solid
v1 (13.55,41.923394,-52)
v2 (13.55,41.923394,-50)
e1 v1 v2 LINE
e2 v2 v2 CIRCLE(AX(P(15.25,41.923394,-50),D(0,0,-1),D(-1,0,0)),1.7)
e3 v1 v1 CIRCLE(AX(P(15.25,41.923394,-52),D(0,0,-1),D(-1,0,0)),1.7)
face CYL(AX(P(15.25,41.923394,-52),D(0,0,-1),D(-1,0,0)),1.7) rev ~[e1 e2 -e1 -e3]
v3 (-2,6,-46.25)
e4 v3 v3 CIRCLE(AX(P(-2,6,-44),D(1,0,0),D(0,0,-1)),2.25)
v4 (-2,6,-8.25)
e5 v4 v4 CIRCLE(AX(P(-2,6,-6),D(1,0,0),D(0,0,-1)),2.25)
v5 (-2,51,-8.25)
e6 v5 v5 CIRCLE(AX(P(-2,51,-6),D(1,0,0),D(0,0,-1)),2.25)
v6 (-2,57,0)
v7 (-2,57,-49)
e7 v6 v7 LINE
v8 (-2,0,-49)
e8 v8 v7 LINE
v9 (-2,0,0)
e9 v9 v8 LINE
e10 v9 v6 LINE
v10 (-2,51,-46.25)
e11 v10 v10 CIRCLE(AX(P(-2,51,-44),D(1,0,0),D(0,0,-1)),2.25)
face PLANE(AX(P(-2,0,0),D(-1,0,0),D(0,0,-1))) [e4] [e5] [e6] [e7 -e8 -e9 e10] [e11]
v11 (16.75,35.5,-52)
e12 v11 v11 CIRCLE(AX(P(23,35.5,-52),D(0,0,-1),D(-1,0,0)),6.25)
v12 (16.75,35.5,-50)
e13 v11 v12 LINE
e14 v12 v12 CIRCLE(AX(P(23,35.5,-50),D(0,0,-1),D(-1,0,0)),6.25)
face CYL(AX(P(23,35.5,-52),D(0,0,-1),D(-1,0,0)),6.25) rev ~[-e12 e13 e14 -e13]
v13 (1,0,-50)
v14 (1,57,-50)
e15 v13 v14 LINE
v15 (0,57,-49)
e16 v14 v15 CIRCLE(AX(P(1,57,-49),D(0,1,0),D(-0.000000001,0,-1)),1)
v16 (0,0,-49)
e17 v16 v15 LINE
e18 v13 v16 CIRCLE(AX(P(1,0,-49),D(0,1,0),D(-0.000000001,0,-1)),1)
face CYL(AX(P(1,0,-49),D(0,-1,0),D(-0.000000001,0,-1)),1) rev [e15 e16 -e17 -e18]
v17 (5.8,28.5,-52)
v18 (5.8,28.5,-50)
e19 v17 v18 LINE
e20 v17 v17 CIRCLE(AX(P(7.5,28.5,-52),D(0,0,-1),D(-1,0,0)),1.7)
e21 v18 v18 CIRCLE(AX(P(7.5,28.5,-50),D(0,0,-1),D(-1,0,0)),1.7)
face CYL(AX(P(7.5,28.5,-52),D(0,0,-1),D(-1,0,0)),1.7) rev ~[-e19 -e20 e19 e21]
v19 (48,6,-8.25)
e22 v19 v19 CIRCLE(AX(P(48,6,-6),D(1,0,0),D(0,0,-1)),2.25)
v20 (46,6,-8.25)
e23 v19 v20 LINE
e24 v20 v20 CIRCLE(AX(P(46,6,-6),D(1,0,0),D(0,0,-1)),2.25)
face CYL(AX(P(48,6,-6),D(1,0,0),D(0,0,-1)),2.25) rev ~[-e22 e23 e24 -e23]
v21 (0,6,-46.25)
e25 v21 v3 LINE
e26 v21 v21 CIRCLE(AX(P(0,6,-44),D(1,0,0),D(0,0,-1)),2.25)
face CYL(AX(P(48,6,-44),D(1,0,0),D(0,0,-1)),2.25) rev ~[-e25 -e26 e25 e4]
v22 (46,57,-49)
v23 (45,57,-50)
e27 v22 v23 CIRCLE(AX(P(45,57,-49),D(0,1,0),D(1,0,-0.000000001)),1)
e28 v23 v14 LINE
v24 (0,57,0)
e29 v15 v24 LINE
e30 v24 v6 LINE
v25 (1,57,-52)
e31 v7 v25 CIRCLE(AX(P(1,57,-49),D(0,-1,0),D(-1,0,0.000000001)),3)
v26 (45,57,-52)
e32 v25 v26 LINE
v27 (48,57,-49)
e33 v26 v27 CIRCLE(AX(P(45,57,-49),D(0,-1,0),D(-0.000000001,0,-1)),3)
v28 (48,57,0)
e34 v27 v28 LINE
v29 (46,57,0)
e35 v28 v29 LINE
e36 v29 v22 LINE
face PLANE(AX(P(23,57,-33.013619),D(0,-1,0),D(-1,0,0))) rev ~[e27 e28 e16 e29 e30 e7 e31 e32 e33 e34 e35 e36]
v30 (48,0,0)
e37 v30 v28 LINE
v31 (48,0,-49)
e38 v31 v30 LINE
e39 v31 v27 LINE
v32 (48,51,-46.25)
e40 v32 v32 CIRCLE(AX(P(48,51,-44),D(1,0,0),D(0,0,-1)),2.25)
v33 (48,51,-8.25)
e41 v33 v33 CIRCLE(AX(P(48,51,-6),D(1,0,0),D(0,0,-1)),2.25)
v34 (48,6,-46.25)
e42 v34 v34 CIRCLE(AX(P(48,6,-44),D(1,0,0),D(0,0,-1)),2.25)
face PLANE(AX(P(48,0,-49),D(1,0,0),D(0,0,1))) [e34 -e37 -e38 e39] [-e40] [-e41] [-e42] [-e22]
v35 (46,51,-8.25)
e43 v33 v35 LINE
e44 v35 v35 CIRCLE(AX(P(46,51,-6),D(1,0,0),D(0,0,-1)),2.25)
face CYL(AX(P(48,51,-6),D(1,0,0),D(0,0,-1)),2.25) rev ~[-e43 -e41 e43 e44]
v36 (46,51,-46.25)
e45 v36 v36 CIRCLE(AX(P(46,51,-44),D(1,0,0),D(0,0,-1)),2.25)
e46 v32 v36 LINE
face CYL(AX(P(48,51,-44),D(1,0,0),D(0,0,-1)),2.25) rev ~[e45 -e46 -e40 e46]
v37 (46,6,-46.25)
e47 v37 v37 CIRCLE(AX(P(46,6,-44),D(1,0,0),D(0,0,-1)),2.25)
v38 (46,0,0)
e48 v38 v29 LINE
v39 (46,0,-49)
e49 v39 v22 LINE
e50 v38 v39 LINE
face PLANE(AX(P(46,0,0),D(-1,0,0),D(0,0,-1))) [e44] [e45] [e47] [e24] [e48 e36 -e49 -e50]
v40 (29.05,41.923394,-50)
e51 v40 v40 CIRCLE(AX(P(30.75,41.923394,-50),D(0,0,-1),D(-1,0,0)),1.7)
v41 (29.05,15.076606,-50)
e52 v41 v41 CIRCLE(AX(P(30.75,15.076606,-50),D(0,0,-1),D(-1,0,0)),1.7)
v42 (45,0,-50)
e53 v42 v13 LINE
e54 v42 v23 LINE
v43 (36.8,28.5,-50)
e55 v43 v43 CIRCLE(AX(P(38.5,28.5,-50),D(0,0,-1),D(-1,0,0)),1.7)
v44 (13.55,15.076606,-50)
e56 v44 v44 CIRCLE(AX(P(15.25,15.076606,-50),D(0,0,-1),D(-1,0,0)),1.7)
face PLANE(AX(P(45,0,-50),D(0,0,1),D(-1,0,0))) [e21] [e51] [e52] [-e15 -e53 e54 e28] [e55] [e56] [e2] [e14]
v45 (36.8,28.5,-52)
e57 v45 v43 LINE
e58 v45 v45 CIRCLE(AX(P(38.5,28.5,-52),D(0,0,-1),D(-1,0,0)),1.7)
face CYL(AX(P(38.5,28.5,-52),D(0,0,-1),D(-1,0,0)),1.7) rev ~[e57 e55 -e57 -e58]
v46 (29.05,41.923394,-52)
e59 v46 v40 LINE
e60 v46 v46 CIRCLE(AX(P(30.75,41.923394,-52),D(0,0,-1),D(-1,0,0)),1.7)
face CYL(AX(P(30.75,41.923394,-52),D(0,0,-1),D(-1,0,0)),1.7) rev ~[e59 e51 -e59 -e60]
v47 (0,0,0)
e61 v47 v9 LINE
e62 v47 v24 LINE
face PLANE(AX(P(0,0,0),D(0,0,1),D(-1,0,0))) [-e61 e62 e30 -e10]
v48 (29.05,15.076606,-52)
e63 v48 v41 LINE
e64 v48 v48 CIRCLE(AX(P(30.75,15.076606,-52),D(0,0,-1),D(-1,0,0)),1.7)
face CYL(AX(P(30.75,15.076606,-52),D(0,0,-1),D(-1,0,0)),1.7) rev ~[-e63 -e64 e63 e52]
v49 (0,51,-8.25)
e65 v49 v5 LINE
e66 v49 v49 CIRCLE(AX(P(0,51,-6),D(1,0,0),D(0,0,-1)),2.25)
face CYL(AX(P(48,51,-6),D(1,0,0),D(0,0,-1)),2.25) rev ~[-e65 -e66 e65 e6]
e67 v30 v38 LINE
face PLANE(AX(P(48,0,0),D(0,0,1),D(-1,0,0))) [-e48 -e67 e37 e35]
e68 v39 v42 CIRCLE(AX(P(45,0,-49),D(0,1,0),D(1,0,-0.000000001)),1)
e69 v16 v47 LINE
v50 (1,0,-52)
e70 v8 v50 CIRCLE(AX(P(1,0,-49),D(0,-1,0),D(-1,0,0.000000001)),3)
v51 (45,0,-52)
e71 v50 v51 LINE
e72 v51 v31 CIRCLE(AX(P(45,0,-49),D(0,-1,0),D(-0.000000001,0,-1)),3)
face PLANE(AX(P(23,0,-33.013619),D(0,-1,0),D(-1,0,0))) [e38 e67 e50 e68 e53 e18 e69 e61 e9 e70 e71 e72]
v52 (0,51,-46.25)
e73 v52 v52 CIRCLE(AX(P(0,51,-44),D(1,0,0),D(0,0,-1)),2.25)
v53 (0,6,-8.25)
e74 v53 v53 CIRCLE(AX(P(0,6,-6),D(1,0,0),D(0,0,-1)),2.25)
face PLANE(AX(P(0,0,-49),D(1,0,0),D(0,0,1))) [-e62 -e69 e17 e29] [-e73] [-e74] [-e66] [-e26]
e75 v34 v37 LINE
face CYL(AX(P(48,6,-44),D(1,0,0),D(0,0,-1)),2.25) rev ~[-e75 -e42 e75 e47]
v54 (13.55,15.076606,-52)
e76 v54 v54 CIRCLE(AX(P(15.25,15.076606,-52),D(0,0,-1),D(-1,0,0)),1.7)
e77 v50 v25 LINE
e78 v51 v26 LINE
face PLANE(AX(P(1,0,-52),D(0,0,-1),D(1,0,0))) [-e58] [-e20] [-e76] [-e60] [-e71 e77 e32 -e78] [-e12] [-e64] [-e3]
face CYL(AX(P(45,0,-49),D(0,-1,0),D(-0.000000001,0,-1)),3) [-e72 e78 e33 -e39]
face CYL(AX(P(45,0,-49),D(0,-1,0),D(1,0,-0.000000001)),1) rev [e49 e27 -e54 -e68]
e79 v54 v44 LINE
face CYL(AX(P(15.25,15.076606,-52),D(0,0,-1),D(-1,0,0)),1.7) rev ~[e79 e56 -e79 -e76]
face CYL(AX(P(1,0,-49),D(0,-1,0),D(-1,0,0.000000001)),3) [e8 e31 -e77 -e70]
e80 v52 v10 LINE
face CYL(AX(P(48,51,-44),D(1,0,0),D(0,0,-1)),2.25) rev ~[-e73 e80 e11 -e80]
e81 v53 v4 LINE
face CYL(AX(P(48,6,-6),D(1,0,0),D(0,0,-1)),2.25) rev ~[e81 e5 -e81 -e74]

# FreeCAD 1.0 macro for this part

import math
import FreeCAD as App
import Part
import Sketcher
Q = App.Units.Quantity

doc = App.newDocument("Part")
body = doc.addObject("PartDesign::Body", "Body")

# Sketch on XZ plane
sketch1 = doc.addObject("Sketcher::SketchObject", "Sketch")
body.addObject(sketch1)
sketch1.AttachmentSupport = (doc.XZ_Plane, [""])
sketch1.MapMode = "FlatFace"
sketch1.addGeometry([
    Part.LineSegment(App.Vector(-2, -49, 0), App.Vector(-2, 0, 0)),  # 0
    Part.LineSegment(App.Vector(-2, 0, 0), App.Vector(0, 0, 0)),  # 1
    Part.LineSegment(App.Vector(0, 0, 0), App.Vector(0, -49, 0)),  # 2
    Part.ArcOfCircle(Part.Circle(App.Vector(1, -49, 0), App.Vector(0, 0, 1), 1), math.radians(-180), math.radians(-90)),  # 3
    Part.LineSegment(App.Vector(1, -50, 0), App.Vector(45, -50, 0)),  # 4
    Part.ArcOfCircle(Part.Circle(App.Vector(45, -49, 0), App.Vector(0, 0, 1), 1), math.radians(-90), math.radians(0)),  # 5
    Part.LineSegment(App.Vector(46, -49, 0), App.Vector(46, 0, 0)),  # 6
    Part.LineSegment(App.Vector(46, 0, 0), App.Vector(48, 0, 0)),  # 7
    Part.LineSegment(App.Vector(48, 0, 0), App.Vector(48, -49, 0)),  # 8
    Part.ArcOfCircle(Part.Circle(App.Vector(45, -49, 0), App.Vector(0, 0, 1), 3), math.radians(-90), math.radians(0)),  # 9
    Part.LineSegment(App.Vector(45, -52, 0), App.Vector(1, -52, 0)),  # 10
    Part.ArcOfCircle(Part.Circle(App.Vector(1, -49, 0), App.Vector(0, 0, 1), 3), math.radians(180), math.radians(270)),  # 11
], False)
sketch1.addConstraint([
    Sketcher.Constraint("Coincident", 0, 2, 1, 1),
    Sketcher.Constraint("Coincident", 1, 2, 2, 1),
    Sketcher.Constraint("Tangent", 2, 2, 3, 1),
    Sketcher.Constraint("Tangent", 3, 2, 4, 1),
    Sketcher.Constraint("Tangent", 4, 2, 5, 1),
    Sketcher.Constraint("Tangent", 5, 2, 6, 1),
    Sketcher.Constraint("Coincident", 6, 2, 7, 1),
    Sketcher.Constraint("Coincident", 7, 2, 8, 1),
    Sketcher.Constraint("Tangent", 8, 2, 9, 2),
    Sketcher.Constraint("Tangent", 9, 1, 10, 1),
    Sketcher.Constraint("Tangent", 10, 2, 11, 2),
    Sketcher.Constraint("Tangent", 11, 1, 0, 1),
    Sketcher.Constraint("Vertical", 0),
    Sketcher.Constraint("Horizontal", 1),
    Sketcher.Constraint("Vertical", 2),
    Sketcher.Constraint("Horizontal", 4),
    Sketcher.Constraint("Vertical", 6),
    Sketcher.Constraint("Horizontal", 7),
    Sketcher.Constraint("Vertical", 8),
    Sketcher.Constraint("Horizontal", 10),
    Sketcher.Constraint("Coincident", 1, 2, -1, 1),
    Sketcher.Constraint("Coincident", 9, 3, 5, 3),
    Sketcher.Constraint("Coincident", 11, 3, 3, 3),
    Sketcher.Constraint("Equal", 3, 5),
    Sketcher.Constraint("PointOnObject", 6, 2, -1),
    Sketcher.Constraint("Radius", 3, Q("1 mm")),
    Sketcher.Constraint("Radius", 9, Q("3 mm")),
    Sketcher.Constraint("DistanceX", 4, 1, 4, 2, Q("44 mm")),
    Sketcher.Constraint("DistanceY", 0, 1, 0, 2, Q("49 mm")),
])
pad1 = doc.addObject("PartDesign::Pad", "Pad")
body.addObject(pad1)
pad1.Profile = sketch1
pad1.Length = 57
pad1.Reversed = True

# Sketch on YZ plane
sketch2 = doc.addObject("Sketcher::SketchObject", "Sketch001")
body.addObject(sketch2)
sketch2.AttachmentSupport = (doc.YZ_Plane, [""])
sketch2.MapMode = "FlatFace"
sketch2.AttachmentOffset = App.Placement(App.Vector(0, 0, 48), App.Rotation())
sketch2.addGeometry([
    Part.Circle(App.Vector(51, -6, 0), App.Vector(0, 0, 1), 2.25),
    Part.Circle(App.Vector(51, -44, 0), App.Vector(0, 0, 1), 2.25),
    Part.Circle(App.Vector(6, -6, 0), App.Vector(0, 0, 1), 2.25),
    Part.Circle(App.Vector(6, -44, 0), App.Vector(0, 0, 1), 2.25),
], False)
sketch2.addConstraint([
    Sketcher.Constraint("Equal", 0, 1),
    Sketcher.Constraint("Equal", 1, 2),
    Sketcher.Constraint("Equal", 2, 3),
    Sketcher.Constraint("Horizontal", 0, 3, 2, 3),
    Sketcher.Constraint("Horizontal", 1, 3, 3, 3),
    Sketcher.Constraint("Vertical", 0, 3, 1, 3),
    Sketcher.Constraint("Vertical", 2, 3, 3, 3),
    Sketcher.Constraint("Diameter", 0, Q("4.5 mm")),
    Sketcher.Constraint("DistanceX", -1, 1, 0, 3, Q("51 mm")),
    Sketcher.Constraint("DistanceY", 0, 3, -1, 1, Q("6 mm")),
    Sketcher.Constraint("DistanceY", 1, 3, -1, 1, Q("44 mm")),
    Sketcher.Constraint("DistanceX", -1, 1, 2, 3, Q("6 mm")),
])
pocket1 = doc.addObject("PartDesign::Pocket", "Pocket")
body.addObject(pocket1)
pocket1.Profile = sketch2
pocket1.Type = "ThroughAll"

# Sketch on XY plane
sketch3 = doc.addObject("Sketcher::SketchObject", "Sketch002")
body.addObject(sketch3)
sketch3.AttachmentSupport = (doc.XY_Plane, [""])
sketch3.MapMode = "FlatFace"
sketch3.AttachmentOffset = App.Placement(App.Vector(0, 0, -52), App.Rotation())
sketch3.addGeometry([
    Part.Circle(App.Vector(38.5, 28.5, 0), App.Vector(0, 0, 1), 1.7),  # 0
    Part.Circle(App.Vector(30.75, 41.923394, 0), App.Vector(0, 0, 1), 1.7),  # 1
    Part.Circle(App.Vector(15.25, 41.923394, 0), App.Vector(0, 0, 1), 1.7),  # 2
    Part.Circle(App.Vector(7.5, 28.5, 0), App.Vector(0, 0, 1), 1.7),  # 3
    Part.Circle(App.Vector(15.25, 15.076606, 0), App.Vector(0, 0, 1), 1.7),  # 4
    Part.Circle(App.Vector(30.75, 15.076606, 0), App.Vector(0, 0, 1), 1.7),  # 5
    Part.Circle(App.Vector(23, 35.5, 0), App.Vector(0, 0, 1), 6.25),  # 6
], False)
sketch3.addConstraint([
    Sketcher.Constraint("Equal", 0, 1),
    Sketcher.Constraint("Equal", 1, 2),
    Sketcher.Constraint("Equal", 2, 3),
    Sketcher.Constraint("Equal", 3, 4),
    Sketcher.Constraint("Equal", 4, 5),
    Sketcher.Constraint("Horizontal", 1, 3, 2, 3),
    Sketcher.Constraint("Horizontal", 0, 3, 3, 3),
    Sketcher.Constraint("Horizontal", 4, 3, 5, 3),
    Sketcher.Constraint("Vertical", 2, 3, 4, 3),
    Sketcher.Constraint("Vertical", 1, 3, 5, 3),
    Sketcher.Constraint("Diameter", 0, Q("3.4 mm")),
    Sketcher.Constraint("Diameter", 6, Q("12.5 mm")),
    Sketcher.Constraint("DistanceX", -1, 1, 6, 3, Q("23 mm")),
    Sketcher.Constraint("DistanceX", 3, 3, 0, 3, Q("31 mm")),
    Sketcher.Constraint("DistanceY", 0, 3, 6, 3, Q("7 mm")),
    Sketcher.Constraint("DistanceX", -1, 1, 0, 3, Q("38.5 mm")),
    Sketcher.Constraint("DistanceY", -1, 1, 0, 3, Q("28.5 mm")),
    Sketcher.Constraint("DistanceX", 2, 3, 1, 3, Q("15.5 mm")),
    Sketcher.Constraint("DistanceX", -1, 1, 1, 3, Q("30.75 mm")),
    Sketcher.Constraint("DistanceY", -1, 1, 1, 3, Q("41.923394 mm")),
    Sketcher.Constraint("DistanceY", -1, 1, 4, 3, Q("15.076606 mm")),
])
pocket2 = doc.addObject("PartDesign::Pocket", "Pocket001")
body.addObject(pocket2)
pocket2.Profile = sketch3
pocket2.Length = 52
pocket2.Reversed = True

doc.recompute()
